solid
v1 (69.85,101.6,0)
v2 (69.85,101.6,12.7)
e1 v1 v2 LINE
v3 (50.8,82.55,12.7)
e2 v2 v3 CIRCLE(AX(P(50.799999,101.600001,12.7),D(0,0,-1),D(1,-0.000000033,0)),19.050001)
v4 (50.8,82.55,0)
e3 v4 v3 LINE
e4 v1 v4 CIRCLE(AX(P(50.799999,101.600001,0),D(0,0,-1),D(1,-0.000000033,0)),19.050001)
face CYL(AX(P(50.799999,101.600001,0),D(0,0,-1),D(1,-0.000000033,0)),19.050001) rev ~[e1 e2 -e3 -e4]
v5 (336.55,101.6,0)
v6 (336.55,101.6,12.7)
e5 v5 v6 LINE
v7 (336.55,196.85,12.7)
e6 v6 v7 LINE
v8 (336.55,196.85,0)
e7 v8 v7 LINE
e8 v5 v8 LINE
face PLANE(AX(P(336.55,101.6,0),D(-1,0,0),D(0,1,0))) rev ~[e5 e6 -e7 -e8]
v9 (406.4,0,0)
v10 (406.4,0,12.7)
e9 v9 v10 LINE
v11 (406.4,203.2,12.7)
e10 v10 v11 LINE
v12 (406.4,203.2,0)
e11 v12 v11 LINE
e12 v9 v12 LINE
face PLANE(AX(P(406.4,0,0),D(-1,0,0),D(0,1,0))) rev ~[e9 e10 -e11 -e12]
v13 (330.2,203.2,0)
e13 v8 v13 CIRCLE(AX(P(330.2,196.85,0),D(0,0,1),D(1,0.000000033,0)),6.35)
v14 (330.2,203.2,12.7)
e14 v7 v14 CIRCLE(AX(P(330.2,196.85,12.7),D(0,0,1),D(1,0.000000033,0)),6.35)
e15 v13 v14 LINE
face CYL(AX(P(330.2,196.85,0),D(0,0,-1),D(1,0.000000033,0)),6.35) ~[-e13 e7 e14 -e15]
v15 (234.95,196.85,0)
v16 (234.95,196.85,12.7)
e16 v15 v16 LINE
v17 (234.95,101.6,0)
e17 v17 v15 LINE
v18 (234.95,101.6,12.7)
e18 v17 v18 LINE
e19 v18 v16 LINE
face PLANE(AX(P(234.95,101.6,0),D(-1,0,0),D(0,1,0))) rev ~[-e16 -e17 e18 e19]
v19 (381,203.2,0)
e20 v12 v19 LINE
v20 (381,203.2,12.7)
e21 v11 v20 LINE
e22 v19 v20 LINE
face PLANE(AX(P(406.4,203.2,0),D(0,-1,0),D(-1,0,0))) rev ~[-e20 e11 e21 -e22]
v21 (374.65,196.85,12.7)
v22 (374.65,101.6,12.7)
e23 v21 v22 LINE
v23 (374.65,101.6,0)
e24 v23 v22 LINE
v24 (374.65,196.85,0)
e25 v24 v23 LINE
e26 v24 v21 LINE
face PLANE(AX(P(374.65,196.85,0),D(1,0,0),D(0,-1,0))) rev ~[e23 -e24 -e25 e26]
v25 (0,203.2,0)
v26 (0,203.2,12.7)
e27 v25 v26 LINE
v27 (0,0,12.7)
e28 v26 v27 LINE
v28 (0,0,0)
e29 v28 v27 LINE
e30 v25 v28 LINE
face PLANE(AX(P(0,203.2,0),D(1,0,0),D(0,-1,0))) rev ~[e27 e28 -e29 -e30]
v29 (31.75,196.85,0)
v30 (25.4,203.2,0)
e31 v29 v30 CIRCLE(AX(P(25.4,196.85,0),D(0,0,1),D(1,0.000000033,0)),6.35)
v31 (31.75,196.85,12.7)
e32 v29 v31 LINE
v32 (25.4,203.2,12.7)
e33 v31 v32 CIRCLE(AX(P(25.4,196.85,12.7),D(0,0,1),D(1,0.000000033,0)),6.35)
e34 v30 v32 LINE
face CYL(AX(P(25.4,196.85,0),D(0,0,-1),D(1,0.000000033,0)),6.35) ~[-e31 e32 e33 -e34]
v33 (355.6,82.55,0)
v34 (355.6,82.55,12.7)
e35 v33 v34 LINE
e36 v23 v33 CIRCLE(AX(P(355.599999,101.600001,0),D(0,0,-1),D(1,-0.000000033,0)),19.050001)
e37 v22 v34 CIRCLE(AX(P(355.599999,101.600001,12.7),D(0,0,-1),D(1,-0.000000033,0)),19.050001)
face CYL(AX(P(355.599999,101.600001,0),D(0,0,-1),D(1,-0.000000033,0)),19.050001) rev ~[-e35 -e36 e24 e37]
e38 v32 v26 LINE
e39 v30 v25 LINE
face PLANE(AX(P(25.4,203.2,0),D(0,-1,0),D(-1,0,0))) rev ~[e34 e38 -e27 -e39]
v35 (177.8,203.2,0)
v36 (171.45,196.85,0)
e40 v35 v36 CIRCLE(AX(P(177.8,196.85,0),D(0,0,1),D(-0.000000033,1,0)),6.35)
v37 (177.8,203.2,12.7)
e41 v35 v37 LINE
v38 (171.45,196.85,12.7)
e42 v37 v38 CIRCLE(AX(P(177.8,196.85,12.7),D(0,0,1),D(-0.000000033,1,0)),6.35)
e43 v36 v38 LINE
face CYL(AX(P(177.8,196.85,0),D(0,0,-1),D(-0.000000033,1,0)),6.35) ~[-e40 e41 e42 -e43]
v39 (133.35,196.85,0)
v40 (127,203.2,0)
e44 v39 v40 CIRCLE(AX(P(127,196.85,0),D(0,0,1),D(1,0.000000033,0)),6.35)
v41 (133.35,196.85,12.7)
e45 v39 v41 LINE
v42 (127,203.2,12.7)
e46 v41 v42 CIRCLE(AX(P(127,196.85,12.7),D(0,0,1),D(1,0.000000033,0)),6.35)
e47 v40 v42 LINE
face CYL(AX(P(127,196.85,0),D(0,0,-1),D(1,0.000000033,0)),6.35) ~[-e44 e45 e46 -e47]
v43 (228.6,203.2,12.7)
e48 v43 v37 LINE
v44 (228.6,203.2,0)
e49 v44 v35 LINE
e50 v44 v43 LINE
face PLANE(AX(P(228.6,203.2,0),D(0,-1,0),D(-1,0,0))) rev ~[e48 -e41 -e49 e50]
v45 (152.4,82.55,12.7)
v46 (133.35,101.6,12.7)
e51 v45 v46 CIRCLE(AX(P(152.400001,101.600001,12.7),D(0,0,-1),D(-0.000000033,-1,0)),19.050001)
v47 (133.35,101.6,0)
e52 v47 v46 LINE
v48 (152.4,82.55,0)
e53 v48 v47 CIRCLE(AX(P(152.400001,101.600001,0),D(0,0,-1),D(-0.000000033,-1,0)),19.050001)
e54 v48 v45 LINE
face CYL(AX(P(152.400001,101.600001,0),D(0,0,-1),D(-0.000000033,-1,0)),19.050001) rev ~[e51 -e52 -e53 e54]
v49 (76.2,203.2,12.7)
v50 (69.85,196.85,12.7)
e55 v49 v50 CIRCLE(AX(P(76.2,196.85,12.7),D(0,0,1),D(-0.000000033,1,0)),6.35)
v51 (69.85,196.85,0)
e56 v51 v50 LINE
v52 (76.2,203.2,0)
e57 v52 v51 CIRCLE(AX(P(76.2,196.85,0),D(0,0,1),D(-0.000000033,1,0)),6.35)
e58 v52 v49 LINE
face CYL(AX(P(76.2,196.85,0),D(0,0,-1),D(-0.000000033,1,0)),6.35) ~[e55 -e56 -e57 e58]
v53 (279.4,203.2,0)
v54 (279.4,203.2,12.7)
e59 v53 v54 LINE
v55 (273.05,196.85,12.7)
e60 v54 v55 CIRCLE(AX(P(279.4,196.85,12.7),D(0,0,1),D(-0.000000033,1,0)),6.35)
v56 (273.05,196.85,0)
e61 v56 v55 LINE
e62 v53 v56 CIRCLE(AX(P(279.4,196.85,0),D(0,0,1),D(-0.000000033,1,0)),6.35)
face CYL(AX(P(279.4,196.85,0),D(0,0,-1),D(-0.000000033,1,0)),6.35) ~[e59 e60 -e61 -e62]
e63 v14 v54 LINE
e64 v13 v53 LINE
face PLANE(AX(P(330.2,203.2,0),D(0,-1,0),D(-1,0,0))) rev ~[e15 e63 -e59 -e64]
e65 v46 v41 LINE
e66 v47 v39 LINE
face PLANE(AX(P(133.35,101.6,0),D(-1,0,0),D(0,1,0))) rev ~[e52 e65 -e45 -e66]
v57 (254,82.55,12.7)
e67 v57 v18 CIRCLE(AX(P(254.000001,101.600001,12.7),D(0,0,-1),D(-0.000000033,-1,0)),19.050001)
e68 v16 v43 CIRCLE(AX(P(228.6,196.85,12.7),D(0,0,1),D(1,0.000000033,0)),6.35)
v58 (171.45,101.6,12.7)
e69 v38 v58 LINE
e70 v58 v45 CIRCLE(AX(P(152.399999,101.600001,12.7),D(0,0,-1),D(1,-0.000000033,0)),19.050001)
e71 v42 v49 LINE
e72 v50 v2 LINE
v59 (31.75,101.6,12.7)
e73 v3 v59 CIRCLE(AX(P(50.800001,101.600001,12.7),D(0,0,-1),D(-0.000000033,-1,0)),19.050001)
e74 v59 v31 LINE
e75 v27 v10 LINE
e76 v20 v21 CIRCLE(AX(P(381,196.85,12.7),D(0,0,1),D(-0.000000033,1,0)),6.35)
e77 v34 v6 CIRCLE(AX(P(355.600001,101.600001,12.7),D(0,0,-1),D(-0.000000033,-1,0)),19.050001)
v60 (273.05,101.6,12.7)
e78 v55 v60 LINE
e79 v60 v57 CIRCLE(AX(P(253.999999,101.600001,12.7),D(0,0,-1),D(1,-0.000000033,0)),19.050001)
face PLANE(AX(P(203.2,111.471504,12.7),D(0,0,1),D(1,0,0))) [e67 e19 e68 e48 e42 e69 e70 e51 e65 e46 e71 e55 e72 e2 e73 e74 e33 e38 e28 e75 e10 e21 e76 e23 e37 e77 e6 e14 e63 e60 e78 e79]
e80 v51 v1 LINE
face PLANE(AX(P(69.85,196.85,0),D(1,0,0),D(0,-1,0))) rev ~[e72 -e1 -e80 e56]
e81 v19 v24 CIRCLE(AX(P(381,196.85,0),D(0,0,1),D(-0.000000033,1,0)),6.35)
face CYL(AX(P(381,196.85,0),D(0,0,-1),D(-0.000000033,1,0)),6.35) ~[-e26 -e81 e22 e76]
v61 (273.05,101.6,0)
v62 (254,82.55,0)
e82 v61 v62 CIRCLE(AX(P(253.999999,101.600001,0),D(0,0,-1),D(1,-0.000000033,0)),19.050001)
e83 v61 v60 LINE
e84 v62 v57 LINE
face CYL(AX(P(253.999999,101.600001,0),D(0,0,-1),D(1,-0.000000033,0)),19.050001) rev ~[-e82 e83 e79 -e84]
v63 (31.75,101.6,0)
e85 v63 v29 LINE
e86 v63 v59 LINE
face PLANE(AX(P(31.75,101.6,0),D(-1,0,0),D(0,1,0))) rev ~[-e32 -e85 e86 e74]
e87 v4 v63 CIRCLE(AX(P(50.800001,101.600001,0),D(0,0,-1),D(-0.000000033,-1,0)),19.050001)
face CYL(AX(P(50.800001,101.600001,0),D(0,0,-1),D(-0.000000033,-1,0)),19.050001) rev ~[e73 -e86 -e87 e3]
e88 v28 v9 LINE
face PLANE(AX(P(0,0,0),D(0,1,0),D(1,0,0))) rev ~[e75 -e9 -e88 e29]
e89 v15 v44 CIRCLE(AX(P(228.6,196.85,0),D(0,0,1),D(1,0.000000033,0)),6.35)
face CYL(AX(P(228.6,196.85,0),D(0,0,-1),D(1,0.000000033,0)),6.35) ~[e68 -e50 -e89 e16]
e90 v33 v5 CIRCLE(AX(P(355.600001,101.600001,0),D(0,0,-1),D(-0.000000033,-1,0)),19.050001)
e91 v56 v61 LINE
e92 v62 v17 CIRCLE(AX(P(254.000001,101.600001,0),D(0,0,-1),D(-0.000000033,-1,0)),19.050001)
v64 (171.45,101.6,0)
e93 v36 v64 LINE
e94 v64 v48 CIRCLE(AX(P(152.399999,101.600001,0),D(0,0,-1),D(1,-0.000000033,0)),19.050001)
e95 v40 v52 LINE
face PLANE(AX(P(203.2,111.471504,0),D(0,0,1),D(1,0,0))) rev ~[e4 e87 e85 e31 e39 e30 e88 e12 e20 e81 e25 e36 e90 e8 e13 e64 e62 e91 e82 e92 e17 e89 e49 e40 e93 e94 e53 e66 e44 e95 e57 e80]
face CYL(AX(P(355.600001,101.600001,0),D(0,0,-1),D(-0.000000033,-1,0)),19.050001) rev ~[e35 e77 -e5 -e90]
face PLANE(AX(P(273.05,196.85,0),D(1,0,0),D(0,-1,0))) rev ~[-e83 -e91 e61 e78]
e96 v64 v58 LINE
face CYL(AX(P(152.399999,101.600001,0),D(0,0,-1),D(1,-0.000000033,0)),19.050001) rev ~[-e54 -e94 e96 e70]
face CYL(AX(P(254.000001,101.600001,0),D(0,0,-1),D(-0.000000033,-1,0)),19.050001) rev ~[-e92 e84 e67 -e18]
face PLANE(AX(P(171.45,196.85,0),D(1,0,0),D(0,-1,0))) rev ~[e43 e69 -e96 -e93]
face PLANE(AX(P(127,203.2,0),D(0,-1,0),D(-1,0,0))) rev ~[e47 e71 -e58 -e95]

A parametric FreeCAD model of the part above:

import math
import FreeCAD as App
import Part
import Sketcher

V = App.Vector
Q = App.Units.Quantity

doc = App.newDocument("Part")
body = doc.addObject("PartDesign::Body", "Body")

sketch1 = doc.addObject("Sketcher::SketchObject", "Sketch")
body.addObject(sketch1)
sketch1.AttachmentSupport = (doc.XY_Plane, [""])
sketch1.MapMode = "FlatFace"
sketch1.addGeometry(Part.LineSegment(V(0, 203, 0), V(0, 0, 0)), False)
sketch1.addGeometry(Part.LineSegment(V(0, 0, 0), V(406, 0, 0)), False)
sketch1.addGeometry(Part.LineSegment(V(406, 0, 0), V(406, 203, 0)), False)
sketch1.addGeometry(Part.LineSegment(V(406, 203, 0), V(381, 203, 0)), False)
sketch1.addGeometry(Part.ArcOfCircle(Part.Circle(V(381, 197, 0), V(0, 0, 1), 6), math.radians(90), math.radians(180)), False)
sketch1.addGeometry(Part.LineSegment(V(375, 197, 0), V(375, 102, 0)), False)
sketch1.addGeometry(Part.ArcOfCircle(Part.Circle(V(356, 102, 0), V(0, 0, 1), 19), math.radians(-90), math.radians(0)), False)
sketch1.addGeometry(Part.ArcOfCircle(Part.Circle(V(356, 102, 0), V(0, 0, 1), 19), math.radians(-180), math.radians(-90)), False)
sketch1.addGeometry(Part.LineSegment(V(337, 102, 0), V(337, 197, 0)), False)
sketch1.addGeometry(Part.ArcOfCircle(Part.Circle(V(330, 197, 0), V(0, 0, 1), 6), math.radians(0), math.radians(90)), False)
sketch1.addGeometry(Part.LineSegment(V(330, 203, 0), V(279, 203, 0)), False)
sketch1.addGeometry(Part.ArcOfCircle(Part.Circle(V(279, 197, 0), V(0, 0, 1), 6), math.radians(90), math.radians(180)), False)
sketch1.addGeometry(Part.LineSegment(V(273, 197, 0), V(273, 102, 0)), False)
sketch1.addGeometry(Part.ArcOfCircle(Part.Circle(V(254, 102, 0), V(0, 0, 1), 19), math.radians(-90), math.radians(0)), False)
sketch1.addGeometry(Part.ArcOfCircle(Part.Circle(V(254, 102, 0), V(0, 0, 1), 19), math.radians(-180), math.radians(-90)), False)
sketch1.addGeometry(Part.LineSegment(V(235, 102, 0), V(235, 197, 0)), False)
sketch1.addGeometry(Part.ArcOfCircle(Part.Circle(V(229, 197, 0), V(0, 0, 1), 6), math.radians(0), math.radians(90)), False)
sketch1.addGeometry(Part.LineSegment(V(229, 203, 0), V(178, 203, 0)), False)
sketch1.addGeometry(Part.ArcOfCircle(Part.Circle(V(178, 197, 0), V(0, 0, 1), 6), math.radians(90), math.radians(180)), False)
sketch1.addGeometry(Part.LineSegment(V(171, 197, 0), V(171, 102, 0)), False)
sketch1.addGeometry(Part.ArcOfCircle(Part.Circle(V(152, 102, 0), V(0, 0, 1), 19), math.radians(-90), math.radians(0)), False)
sketch1.addGeometry(Part.ArcOfCircle(Part.Circle(V(152, 102, 0), V(0, 0, 1), 19), math.radians(-180), math.radians(-90)), False)
sketch1.addGeometry(Part.LineSegment(V(133, 102, 0), V(133, 197, 0)), False)
sketch1.addGeometry(Part.ArcOfCircle(Part.Circle(V(127, 197, 0), V(0, 0, 1), 6), math.radians(0), math.radians(90)), False)
sketch1.addGeometry(Part.LineSegment(V(127, 203, 0), V(76, 203, 0)), False)
sketch1.addGeometry(Part.ArcOfCircle(Part.Circle(V(76, 197, 0), V(0, 0, 1), 6), math.radians(90), math.radians(180)), False)
sketch1.addGeometry(Part.LineSegment(V(70, 197, 0), V(70, 102, 0)), False)
sketch1.addGeometry(Part.ArcOfCircle(Part.Circle(V(51, 102, 0), V(0, 0, 1), 19), math.radians(-90), math.radians(0)), False)
sketch1.addGeometry(Part.ArcOfCircle(Part.Circle(V(51, 102, 0), V(0, 0, 1), 19), math.radians(-180), math.radians(-90)), False)
sketch1.addGeometry(Part.LineSegment(V(32, 102, 0), V(32, 197, 0)), False)
sketch1.addGeometry(Part.ArcOfCircle(Part.Circle(V(25, 197, 0), V(0, 0, 1), 6), math.radians(0), math.radians(90)), False)
sketch1.addGeometry(Part.LineSegment(V(25, 203, 0), V(0, 203, 0)), False)
sketch1.addConstraint(Sketcher.Constraint("Coincident", 0, 2, 1, 1))
sketch1.addConstraint(Sketcher.Constraint("Coincident", 1, 2, 2, 1))
sketch1.addConstraint(Sketcher.Constraint("Coincident", 2, 2, 3, 1))
sketch1.addConstraint(Sketcher.Constraint("Tangent", 3, 2, 4, 1))
sketch1.addConstraint(Sketcher.Constraint("Tangent", 4, 2, 5, 1))
sketch1.addConstraint(Sketcher.Constraint("Tangent", 5, 2, 6, 2))
sketch1.addConstraint(Sketcher.Constraint("Tangent", 6, 1, 7, 2))
sketch1.addConstraint(Sketcher.Constraint("Tangent", 7, 1, 8, 1))
sketch1.addConstraint(Sketcher.Constraint("Tangent", 8, 2, 9, 1))
sketch1.addConstraint(Sketcher.Constraint("Tangent", 9, 2, 10, 1))
sketch1.addConstraint(Sketcher.Constraint("Tangent", 10, 2, 11, 1))
sketch1.addConstraint(Sketcher.Constraint("Tangent", 11, 2, 12, 1))
sketch1.addConstraint(Sketcher.Constraint("Tangent", 12, 2, 13, 2))
sketch1.addConstraint(Sketcher.Constraint("Tangent", 13, 1, 14, 2))
sketch1.addConstraint(Sketcher.Constraint("Tangent", 14, 1, 15, 1))
sketch1.addConstraint(Sketcher.Constraint("Tangent", 15, 2, 16, 1))
sketch1.addConstraint(Sketcher.Constraint("Tangent", 16, 2, 17, 1))
sketch1.addConstraint(Sketcher.Constraint("Tangent", 17, 2, 18, 1))
sketch1.addConstraint(Sketcher.Constraint("Tangent", 18, 2, 19, 1))
sketch1.addConstraint(Sketcher.Constraint("Tangent", 19, 2, 20, 2))
sketch1.addConstraint(Sketcher.Constraint("Tangent", 20, 1, 21, 2))
sketch1.addConstraint(Sketcher.Constraint("Tangent", 21, 1, 22, 1))
sketch1.addConstraint(Sketcher.Constraint("Tangent", 22, 2, 23, 1))
sketch1.addConstraint(Sketcher.Constraint("Tangent", 23, 2, 24, 1))
sketch1.addConstraint(Sketcher.Constraint("Tangent", 24, 2, 25, 1))
sketch1.addConstraint(Sketcher.Constraint("Tangent", 25, 2, 26, 1))
sketch1.addConstraint(Sketcher.Constraint("Tangent", 26, 2, 27, 2))
sketch1.addConstraint(Sketcher.Constraint("Tangent", 27, 1, 28, 2))
sketch1.addConstraint(Sketcher.Constraint("Tangent", 28, 1, 29, 1))
sketch1.addConstraint(Sketcher.Constraint("Tangent", 29, 2, 30, 1))
sketch1.addConstraint(Sketcher.Constraint("Tangent", 30, 2, 31, 1))
sketch1.addConstraint(Sketcher.Constraint("Coincident", 31, 2, 0, 1))
sketch1.addConstraint(Sketcher.Constraint("Vertical", 0))
sketch1.addConstraint(Sketcher.Constraint("Horizontal", 1))
sketch1.addConstraint(Sketcher.Constraint("Vertical", 2))
sketch1.addConstraint(Sketcher.Constraint("Horizontal", 3))
sketch1.addConstraint(Sketcher.Constraint("Vertical", 5))
sketch1.addConstraint(Sketcher.Constraint("Vertical", 8))
sketch1.addConstraint(Sketcher.Constraint("Horizontal", 10))
sketch1.addConstraint(Sketcher.Constraint("Vertical", 12))
sketch1.addConstraint(Sketcher.Constraint("Vertical", 15))
sketch1.addConstraint(Sketcher.Constraint("Horizontal", 17))
sketch1.addConstraint(Sketcher.Constraint("Vertical", 19))
sketch1.addConstraint(Sketcher.Constraint("Vertical", 22))
sketch1.addConstraint(Sketcher.Constraint("Horizontal", 24))
sketch1.addConstraint(Sketcher.Constraint("Vertical", 26))
sketch1.addConstraint(Sketcher.Constraint("Vertical", 29))
sketch1.addConstraint(Sketcher.Constraint("Horizontal", 31))
sketch1.addConstraint(Sketcher.Constraint("Coincident", 0, 2, -1, 1))
sketch1.addConstraint(Sketcher.Constraint("Equal", 6, 7))
sketch1.addConstraint(Sketcher.Constraint("Equal", 4, 9))
sketch1.addConstraint(Sketcher.Constraint("Equal", 9, 11))
sketch1.addConstraint(Sketcher.Constraint("Equal", 7, 13))
sketch1.addConstraint(Sketcher.Constraint("Equal", 13, 14))
sketch1.addConstraint(Sketcher.Constraint("Equal", 11, 16))
sketch1.addConstraint(Sketcher.Constraint("Equal", 16, 18))
sketch1.addConstraint(Sketcher.Constraint("Equal", 14, 20))
sketch1.addConstraint(Sketcher.Constraint("Equal", 20, 21))
sketch1.addConstraint(Sketcher.Constraint("Equal", 18, 23))
sketch1.addConstraint(Sketcher.Constraint("Equal", 23, 25))
sketch1.addConstraint(Sketcher.Constraint("Equal", 21, 27))
sketch1.addConstraint(Sketcher.Constraint("Equal", 27, 28))
sketch1.addConstraint(Sketcher.Constraint("Equal", 25, 30))
sketch1.addConstraint(Sketcher.Constraint("Horizontal", 4, 3, 9, 3))
sketch1.addConstraint(Sketcher.Constraint("Horizontal", 7, 3, 13, 3))
sketch1.addConstraint(Sketcher.Constraint("Horizontal", 11, 3, 16, 3))
sketch1.addConstraint(Sketcher.Constraint("Horizontal", 14, 3, 20, 3))
sketch1.addConstraint(Sketcher.Constraint("Horizontal", 18, 3, 23, 3))
sketch1.addConstraint(Sketcher.Constraint("Horizontal", 21, 3, 27, 3))
sketch1.addConstraint(Sketcher.Constraint("Horizontal", 25, 3, 30, 3))
sketch1.addConstraint(Sketcher.Constraint("Vertical", 7, 3, 6, 1))
sketch1.addConstraint(Sketcher.Constraint("Vertical", 14, 3, 13, 1))
sketch1.addConstraint(Sketcher.Constraint("Vertical", 21, 3, 20, 1))
sketch1.addConstraint(Sketcher.Constraint("Vertical", 28, 3, 27, 1))
sketch1.addConstraint(Sketcher.Constraint("Equal", 10, 17))
sketch1.addConstraint(Sketcher.Constraint("Equal", 17, 24))
sketch1.addConstraint(Sketcher.Constraint("Equal", 3, 31))
sketch1.addConstraint(Sketcher.Constraint("DistanceX", 1, 1, 1, 2, Q("16 in")))
sketch1.addConstraint(Sketcher.Constraint("DistanceX", 3, 2, 3, 1, Q("1 in")))
sketch1.addConstraint(Sketcher.Constraint("DistanceX", 10, 2, 10, 1, Q("2 in")))
sketch1.addConstraint(Sketcher.Constraint("DistanceY", 0, 2, 0, 1, Q("8 in")))
sketch1.addConstraint(Sketcher.Constraint("Radius", 4, Q("0.25 in")))
sketch1.addConstraint(Sketcher.Constraint("DistanceY", -1, 1, 6, 3, Q("4 in")))
pad1 = doc.addObject("PartDesign::Pad", "Pad")
body.addObject(pad1)
pad1.Profile = sketch1
pad1.Length = Q("0.5 in")

doc.recompute()
